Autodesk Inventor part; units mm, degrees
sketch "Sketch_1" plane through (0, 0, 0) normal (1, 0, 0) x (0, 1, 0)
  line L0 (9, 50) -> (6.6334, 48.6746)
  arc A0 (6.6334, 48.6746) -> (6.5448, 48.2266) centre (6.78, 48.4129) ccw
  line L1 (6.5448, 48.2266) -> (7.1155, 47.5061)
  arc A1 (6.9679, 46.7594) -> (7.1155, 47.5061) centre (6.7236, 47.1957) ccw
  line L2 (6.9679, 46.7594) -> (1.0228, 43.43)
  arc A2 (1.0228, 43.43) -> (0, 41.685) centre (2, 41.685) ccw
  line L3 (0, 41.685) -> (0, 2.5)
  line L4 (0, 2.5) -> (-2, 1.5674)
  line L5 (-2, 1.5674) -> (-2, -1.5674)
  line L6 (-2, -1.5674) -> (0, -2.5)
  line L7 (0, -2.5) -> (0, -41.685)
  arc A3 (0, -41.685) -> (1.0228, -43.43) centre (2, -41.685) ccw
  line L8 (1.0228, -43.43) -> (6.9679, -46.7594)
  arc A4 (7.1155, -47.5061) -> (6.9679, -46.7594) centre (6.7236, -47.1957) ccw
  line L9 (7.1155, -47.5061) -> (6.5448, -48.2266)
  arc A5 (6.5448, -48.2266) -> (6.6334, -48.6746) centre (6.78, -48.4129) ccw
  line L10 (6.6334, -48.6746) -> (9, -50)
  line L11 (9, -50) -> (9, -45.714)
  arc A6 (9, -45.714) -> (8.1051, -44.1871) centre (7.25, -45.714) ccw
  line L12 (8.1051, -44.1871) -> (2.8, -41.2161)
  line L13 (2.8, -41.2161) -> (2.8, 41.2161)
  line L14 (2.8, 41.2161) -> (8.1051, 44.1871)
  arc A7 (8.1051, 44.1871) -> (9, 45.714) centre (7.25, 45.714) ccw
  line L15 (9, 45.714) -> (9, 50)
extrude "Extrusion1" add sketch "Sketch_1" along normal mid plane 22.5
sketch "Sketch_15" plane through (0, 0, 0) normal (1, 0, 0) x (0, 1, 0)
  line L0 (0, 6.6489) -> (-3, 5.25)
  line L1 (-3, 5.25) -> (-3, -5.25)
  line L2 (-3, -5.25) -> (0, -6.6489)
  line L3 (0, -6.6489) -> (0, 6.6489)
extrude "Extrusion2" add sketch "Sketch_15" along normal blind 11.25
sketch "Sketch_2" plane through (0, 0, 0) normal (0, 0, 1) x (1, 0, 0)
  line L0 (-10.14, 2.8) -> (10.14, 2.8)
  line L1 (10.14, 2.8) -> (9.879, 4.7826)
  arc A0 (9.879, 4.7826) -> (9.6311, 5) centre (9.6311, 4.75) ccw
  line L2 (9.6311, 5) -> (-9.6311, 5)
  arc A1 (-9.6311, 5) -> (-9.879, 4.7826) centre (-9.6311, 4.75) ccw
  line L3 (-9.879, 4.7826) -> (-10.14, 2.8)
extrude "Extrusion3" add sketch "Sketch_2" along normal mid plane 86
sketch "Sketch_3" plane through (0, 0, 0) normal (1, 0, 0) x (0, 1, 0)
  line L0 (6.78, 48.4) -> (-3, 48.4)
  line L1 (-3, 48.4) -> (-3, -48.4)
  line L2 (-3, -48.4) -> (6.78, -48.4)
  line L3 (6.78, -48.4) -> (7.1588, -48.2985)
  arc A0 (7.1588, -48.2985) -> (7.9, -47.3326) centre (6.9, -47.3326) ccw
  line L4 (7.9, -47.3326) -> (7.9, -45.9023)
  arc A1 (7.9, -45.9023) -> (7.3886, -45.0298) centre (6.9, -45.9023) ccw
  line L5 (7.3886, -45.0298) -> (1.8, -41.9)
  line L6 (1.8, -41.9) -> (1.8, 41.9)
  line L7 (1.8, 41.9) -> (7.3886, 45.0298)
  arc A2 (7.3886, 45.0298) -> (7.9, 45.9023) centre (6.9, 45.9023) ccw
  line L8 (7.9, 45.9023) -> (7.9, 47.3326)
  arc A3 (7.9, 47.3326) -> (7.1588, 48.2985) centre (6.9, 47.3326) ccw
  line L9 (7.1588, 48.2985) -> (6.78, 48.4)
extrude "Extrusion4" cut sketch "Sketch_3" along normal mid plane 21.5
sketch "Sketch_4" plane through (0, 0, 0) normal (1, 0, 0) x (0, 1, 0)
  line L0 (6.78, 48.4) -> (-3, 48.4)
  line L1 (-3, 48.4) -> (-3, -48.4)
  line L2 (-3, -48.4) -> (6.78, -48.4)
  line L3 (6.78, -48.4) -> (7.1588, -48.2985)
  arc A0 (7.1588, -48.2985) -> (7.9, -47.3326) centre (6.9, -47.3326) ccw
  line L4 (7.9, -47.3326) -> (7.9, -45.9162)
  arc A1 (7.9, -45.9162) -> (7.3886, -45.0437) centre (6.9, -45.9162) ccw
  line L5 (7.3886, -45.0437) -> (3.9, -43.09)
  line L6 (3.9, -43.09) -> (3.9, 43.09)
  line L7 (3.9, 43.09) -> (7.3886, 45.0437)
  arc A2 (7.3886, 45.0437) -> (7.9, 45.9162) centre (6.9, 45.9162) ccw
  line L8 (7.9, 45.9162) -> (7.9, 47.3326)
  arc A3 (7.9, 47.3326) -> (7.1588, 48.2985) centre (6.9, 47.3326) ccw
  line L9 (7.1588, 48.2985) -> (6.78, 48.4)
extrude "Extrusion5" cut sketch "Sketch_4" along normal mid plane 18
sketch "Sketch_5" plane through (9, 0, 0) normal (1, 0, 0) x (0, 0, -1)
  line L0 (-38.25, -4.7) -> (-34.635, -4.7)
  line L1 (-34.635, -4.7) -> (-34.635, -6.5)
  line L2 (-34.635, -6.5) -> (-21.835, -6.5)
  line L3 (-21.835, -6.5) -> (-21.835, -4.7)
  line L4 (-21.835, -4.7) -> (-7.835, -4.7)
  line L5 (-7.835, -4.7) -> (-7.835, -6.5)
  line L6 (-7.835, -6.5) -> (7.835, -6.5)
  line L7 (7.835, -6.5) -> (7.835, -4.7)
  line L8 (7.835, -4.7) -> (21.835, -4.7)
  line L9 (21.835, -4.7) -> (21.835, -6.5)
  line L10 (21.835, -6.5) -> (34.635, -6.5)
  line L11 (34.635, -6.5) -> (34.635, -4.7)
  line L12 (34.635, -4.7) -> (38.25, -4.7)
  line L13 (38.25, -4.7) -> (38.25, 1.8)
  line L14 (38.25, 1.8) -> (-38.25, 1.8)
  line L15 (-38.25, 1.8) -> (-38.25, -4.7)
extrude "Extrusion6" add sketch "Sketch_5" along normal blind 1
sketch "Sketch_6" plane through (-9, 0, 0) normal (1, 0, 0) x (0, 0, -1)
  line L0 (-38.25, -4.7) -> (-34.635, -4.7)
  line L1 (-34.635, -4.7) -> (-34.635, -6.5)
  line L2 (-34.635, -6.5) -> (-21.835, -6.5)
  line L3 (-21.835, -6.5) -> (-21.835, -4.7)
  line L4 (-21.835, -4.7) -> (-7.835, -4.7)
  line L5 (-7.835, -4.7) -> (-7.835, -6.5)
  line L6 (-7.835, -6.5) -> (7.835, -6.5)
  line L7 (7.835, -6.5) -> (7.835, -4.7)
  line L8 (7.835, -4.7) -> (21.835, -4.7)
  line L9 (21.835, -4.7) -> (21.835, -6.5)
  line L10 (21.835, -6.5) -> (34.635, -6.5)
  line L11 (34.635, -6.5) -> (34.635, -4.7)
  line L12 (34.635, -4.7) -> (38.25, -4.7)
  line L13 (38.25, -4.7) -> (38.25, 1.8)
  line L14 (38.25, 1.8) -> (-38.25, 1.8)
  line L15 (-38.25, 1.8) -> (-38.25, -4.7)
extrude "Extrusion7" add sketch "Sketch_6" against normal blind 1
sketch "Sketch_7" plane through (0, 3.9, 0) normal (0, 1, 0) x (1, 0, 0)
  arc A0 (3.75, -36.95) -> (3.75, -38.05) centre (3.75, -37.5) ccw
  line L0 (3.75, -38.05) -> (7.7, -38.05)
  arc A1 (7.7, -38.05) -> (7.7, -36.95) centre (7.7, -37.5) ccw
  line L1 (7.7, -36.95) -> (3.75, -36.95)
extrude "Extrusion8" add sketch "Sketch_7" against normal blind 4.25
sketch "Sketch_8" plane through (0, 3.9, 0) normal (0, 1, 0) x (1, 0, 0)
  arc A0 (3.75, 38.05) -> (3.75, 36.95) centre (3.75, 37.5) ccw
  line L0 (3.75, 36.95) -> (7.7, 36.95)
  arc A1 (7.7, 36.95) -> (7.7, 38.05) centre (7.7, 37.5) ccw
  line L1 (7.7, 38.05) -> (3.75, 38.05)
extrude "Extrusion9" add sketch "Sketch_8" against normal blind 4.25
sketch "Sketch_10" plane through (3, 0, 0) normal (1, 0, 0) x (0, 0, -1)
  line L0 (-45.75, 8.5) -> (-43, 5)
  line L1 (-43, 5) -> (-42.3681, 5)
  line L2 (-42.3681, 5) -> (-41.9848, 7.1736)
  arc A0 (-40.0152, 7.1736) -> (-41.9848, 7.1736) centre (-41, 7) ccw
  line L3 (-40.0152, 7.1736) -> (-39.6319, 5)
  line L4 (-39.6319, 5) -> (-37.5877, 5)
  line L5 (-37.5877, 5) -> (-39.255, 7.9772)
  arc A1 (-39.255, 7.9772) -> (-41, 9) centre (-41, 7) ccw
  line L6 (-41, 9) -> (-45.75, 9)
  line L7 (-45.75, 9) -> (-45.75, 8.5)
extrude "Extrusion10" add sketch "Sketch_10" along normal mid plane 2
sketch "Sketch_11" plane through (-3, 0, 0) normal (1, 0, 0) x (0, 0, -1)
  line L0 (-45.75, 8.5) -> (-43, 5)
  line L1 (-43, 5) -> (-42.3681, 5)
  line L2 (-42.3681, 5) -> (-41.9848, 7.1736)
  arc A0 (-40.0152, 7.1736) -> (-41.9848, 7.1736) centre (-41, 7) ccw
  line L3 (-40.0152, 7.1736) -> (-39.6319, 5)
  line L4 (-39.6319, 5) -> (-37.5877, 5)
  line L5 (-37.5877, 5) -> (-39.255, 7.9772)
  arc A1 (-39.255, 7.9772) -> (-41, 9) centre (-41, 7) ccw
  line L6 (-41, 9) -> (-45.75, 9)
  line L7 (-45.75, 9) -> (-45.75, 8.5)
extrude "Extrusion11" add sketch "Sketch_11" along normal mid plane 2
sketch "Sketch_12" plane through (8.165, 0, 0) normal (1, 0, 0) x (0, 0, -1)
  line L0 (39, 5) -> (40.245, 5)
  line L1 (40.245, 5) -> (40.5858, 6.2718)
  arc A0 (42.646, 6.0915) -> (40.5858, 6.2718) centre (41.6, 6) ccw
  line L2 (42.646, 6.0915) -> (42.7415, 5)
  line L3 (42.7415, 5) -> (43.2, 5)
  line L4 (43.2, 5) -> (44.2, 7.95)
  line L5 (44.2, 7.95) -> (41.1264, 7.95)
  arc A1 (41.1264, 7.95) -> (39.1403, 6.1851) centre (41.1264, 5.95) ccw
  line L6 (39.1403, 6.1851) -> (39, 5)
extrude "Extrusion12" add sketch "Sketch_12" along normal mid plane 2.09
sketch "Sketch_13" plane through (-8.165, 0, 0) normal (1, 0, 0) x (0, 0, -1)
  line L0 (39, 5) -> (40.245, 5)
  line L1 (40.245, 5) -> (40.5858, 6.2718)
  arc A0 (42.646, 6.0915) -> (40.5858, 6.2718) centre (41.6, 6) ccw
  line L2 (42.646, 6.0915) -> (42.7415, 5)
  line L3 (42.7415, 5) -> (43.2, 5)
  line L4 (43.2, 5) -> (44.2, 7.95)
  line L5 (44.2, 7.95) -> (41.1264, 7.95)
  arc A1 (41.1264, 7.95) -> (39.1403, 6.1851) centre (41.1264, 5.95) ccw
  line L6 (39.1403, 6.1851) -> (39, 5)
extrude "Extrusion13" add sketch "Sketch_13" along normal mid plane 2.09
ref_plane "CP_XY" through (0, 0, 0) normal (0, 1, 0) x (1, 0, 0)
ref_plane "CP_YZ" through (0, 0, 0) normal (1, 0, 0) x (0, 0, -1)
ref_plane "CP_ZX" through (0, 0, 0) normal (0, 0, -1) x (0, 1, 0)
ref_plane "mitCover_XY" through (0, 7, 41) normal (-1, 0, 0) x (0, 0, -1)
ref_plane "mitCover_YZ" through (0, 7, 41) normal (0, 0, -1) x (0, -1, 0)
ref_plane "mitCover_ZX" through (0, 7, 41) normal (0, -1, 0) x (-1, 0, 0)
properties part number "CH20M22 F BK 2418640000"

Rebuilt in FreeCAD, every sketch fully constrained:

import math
import FreeCAD as App
import Part
import Sketcher

V = App.Vector
Q = App.Units.Quantity


def add_polygon(sketch, points):
    """Adds a closed chain of lines whose ends are joined by coincident constraints."""
    first, n = sketch.GeometryCount, len(points)
    for a, b in zip(points, points[1:] + points[:1]):
        sketch.addGeometry(Part.LineSegment(App.Vector(*a, 0), App.Vector(*b, 0)), False)
    for i in range(n):
        sketch.addConstraint(Sketcher.Constraint("Coincident", first + i, 2, first + (i + 1) % n, 1))

doc = App.newDocument("Part")
body = doc.addObject("PartDesign::Body", "Body")

sketch1 = body.newObject("Sketcher::SketchObject", "Sketch")
sketch1.AttachmentSupport = (doc.getObject("YZ_Plane"), [""])
sketch1.MapMode = "FlatFace"
sketch1.addGeometry(Part.LineSegment(V(9, 45.714, 0), V(9, 50, 0)), False)
sketch1.addGeometry(Part.LineSegment(V(9, 50, 0), V(6.6334, 48.6746, 0)), False)
sketch1.addGeometry(Part.ArcOfCircle(Part.Circle(V(6.78, 48.4129, 0), V(0, 0, 1), 0.299964), math.radians(119.256826), math.radians(218.382457)), False)
sketch1.addGeometry(Part.LineSegment(V(6.5448, 48.2266, 0), V(7.1155, 47.5061, 0)), False)
sketch1.addGeometry(Part.ArcOfCircle(Part.Circle(V(6.7236, 47.1957, 0), V(0, 0, 1), 0.50004), math.radians(-60.753973), math.radians(38.38059)), False)
sketch1.addGeometry(Part.LineSegment(V(6.9679, 46.7594, 0), V(1.0228, 43.43, 0)), False)
sketch1.addGeometry(Part.ArcOfCircle(Part.Circle(V(2, 41.685, 0), V(0, 0, 1), 1.999986), math.radians(119.248826), math.radians(180)), False)
sketch1.addGeometry(Part.LineSegment(V(0, 41.685, 0), V(0, 2.5, 0)), False)
sketch1.addGeometry(Part.LineSegment(V(0, 2.5, 0), V(-2, 1.5674, 0)), False)
sketch1.addGeometry(Part.LineSegment(V(-2, 1.5674, 0), V(-2, -1.5674, 0)), False)
sketch1.addGeometry(Part.LineSegment(V(-2, -1.5674, 0), V(0, -2.5, 0)), False)
sketch1.addGeometry(Part.LineSegment(V(0, -2.5, 0), V(0, -41.685, 0)), False)
sketch1.addGeometry(Part.ArcOfCircle(Part.Circle(V(2, -41.685, 0), V(0, 0, 1), 2), math.radians(180), math.radians(240.751174)), False)
sketch1.addGeometry(Part.LineSegment(V(1.0228, -43.43, 0), V(6.9679, -46.7594, 0)), False)
sketch1.addGeometry(Part.ArcOfCircle(Part.Circle(V(6.7236, -47.1957, 0), V(0, 0, 1), 0.499934), math.radians(-38.38059), math.radians(60.753973)), False)
sketch1.addGeometry(Part.LineSegment(V(7.1155, -47.5061, 0), V(6.5448, -48.2266, 0)), False)
sketch1.addGeometry(Part.ArcOfCircle(Part.Circle(V(6.78, -48.4129, 0), V(0, 0, 1), 0.300045), math.radians(141.617543), math.radians(240.743174)), False)
sketch1.addGeometry(Part.LineSegment(V(6.6334, -48.6746, 0), V(9, -50, 0)), False)
sketch1.addGeometry(Part.LineSegment(V(9, -50, 0), V(9, -45.714, 0)), False)
sketch1.addGeometry(Part.ArcOfCircle(Part.Circle(V(7.25, -45.714, 0), V(0, 0, 1), 1.75), math.radians(0), math.radians(60.750145)), False)
sketch1.addGeometry(Part.LineSegment(V(8.1051, -44.1871, 0), V(2.8, -41.2161, 0)), False)
sketch1.addGeometry(Part.LineSegment(V(2.8, -41.2161, 0), V(2.8, 41.2161, 0)), False)
sketch1.addGeometry(Part.LineSegment(V(2.8, 41.2161, 0), V(8.1051, 44.1871, 0)), False)
sketch1.addGeometry(Part.ArcOfCircle(Part.Circle(V(7.25, 45.714, 0), V(0, 0, 1), 1.750034), math.radians(-60.750145), math.radians(0)), False)
sketch1.addConstraint(Sketcher.Constraint("Coincident", 0, 2, 1, 1))
sketch1.addConstraint(Sketcher.Constraint("Tangent", 1, 2, 2, 1))
sketch1.addConstraint(Sketcher.Constraint("Tangent", 2, 2, 3, 1))
sketch1.addConstraint(Sketcher.Constraint("Tangent", 3, 2, 4, 2))
sketch1.addConstraint(Sketcher.Constraint("Tangent", 4, 1, 5, 1))
sketch1.addConstraint(Sketcher.Constraint("Tangent", 5, 2, 6, 1))
sketch1.addConstraint(Sketcher.Constraint("Tangent", 6, 2, 7, 1))
sketch1.addConstraint(Sketcher.Constraint("Coincident", 7, 2, 8, 1))
sketch1.addConstraint(Sketcher.Constraint("Coincident", 8, 2, 9, 1))
sketch1.addConstraint(Sketcher.Constraint("Coincident", 9, 2, 10, 1))
sketch1.addConstraint(Sketcher.Constraint("Coincident", 10, 2, 11, 1))
sketch1.addConstraint(Sketcher.Constraint("Tangent", 11, 2, 12, 1))
sketch1.addConstraint(Sketcher.Constraint("Tangent", 12, 2, 13, 1))
sketch1.addConstraint(Sketcher.Constraint("Tangent", 13, 2, 14, 2))
sketch1.addConstraint(Sketcher.Constraint("Tangent", 14, 1, 15, 1))
sketch1.addConstraint(Sketcher.Constraint("Tangent", 15, 2, 16, 1))
sketch1.addConstraint(Sketcher.Constraint("Tangent", 16, 2, 17, 1))
sketch1.addConstraint(Sketcher.Constraint("Coincident", 17, 2, 18, 1))
sketch1.addConstraint(Sketcher.Constraint("Tangent", 18, 2, 19, 1))
sketch1.addConstraint(Sketcher.Constraint("Tangent", 19, 2, 20, 1))
sketch1.addConstraint(Sketcher.Constraint("Coincident", 20, 2, 21, 1))
sketch1.addConstraint(Sketcher.Constraint("Coincident", 21, 2, 22, 1))
sketch1.addConstraint(Sketcher.Constraint("Tangent", 22, 2, 23, 1))
sketch1.addConstraint(Sketcher.Constraint("Tangent", 23, 2, 0, 1))
sketch1.addConstraint(Sketcher.Constraint("Vertical", 0))
sketch1.addConstraint(Sketcher.Constraint("Vertical", 7))
sketch1.addConstraint(Sketcher.Constraint("Vertical", 9))
sketch1.addConstraint(Sketcher.Constraint("Vertical", 11))
sketch1.addConstraint(Sketcher.Constraint("Vertical", 18))
sketch1.addConstraint(Sketcher.Constraint("Vertical", 21))
sketch1.addConstraint(Sketcher.Constraint("Equal", 6, 12))
sketch1.addConstraint(Sketcher.Constraint("Equal", 4, 14))
sketch1.addConstraint(Sketcher.Constraint("Equal", 2, 16))
sketch1.addConstraint(Sketcher.Constraint("Equal", 19, 23))
sketch1.addConstraint(Sketcher.Constraint("Symmetric", 7, 2, 10, 2, -1, 1))
sketch1.addConstraint(Sketcher.Constraint("Symmetric", 6, 3, 12, 3, -1))
sketch1.addConstraint(Sketcher.Constraint("Symmetric", 4, 3, 14, 3, -1))
sketch1.addConstraint(Sketcher.Constraint("Symmetric", 2, 3, 16, 3, -1))
sketch1.addConstraint(Sketcher.Constraint("Symmetric", 19, 3, 23, 3, -1))
sketch1.addConstraint(Sketcher.Constraint("Parallel", 1, 5))
sketch1.addConstraint(Sketcher.Constraint("Parallel", 13, 17))
sketch1.addConstraint(Sketcher.Constraint("Parallel", 17, 20))
sketch1.addConstraint(Sketcher.Constraint("Parallel", 5, 22))
sketch1.addConstraint(Sketcher.Constraint("Equal", 8, 10))
sketch1.addConstraint(Sketcher.Constraint("Radius", 6, 2.0))
sketch1.addConstraint(Sketcher.Constraint("Radius", 2, 0.3))
sketch1.addConstraint(Sketcher.Constraint("Radius", 4, 0.5))
sketch1.addConstraint(Sketcher.Constraint("Angle", 8, Q("-155.0004 deg")))
sketch1.addConstraint(Sketcher.Constraint("Radius", 19, 1.75))
sketch1.addConstraint(Sketcher.Constraint("DistanceX", -1, 1, 0, 2, 9.0))
sketch1.addConstraint(Sketcher.Constraint("DistanceY", -1, 1, 0, 2, 50.0))
sketch1.addConstraint(Sketcher.Constraint("DistanceX", 8, 2, -1, 1, 2.0))
sketch1.addConstraint(Sketcher.Constraint("DistanceY", 10, 2, 7, 2, 5.0))
sketch1.addConstraint(Sketcher.Constraint("DistanceX", -1, 1, 20, 2, 2.8))
sketch1.addConstraint(Sketcher.Constraint("Angle", 1, Q("-150.7493 deg")))
sketch1.addConstraint(Sketcher.Constraint("DistanceY", 0, 1, 0, 2, 4.286))
sketch1.addConstraint(Sketcher.Constraint("DistanceY", 7, 2, 7, 1, 39.185))
sketch1.addConstraint(Sketcher.Constraint("DistanceX", -1, 1, 2, 3, 6.78))
sketch1.addConstraint(Sketcher.Constraint("Distance", 5, 6.814))
pad1 = body.newObject("PartDesign::Pad", "Pad")
pad1.Profile = sketch1
pad1.Length = 22.5
pad1.Midplane = True

sketch2 = body.newObject("Sketcher::SketchObject", "Sketch001")
sketch2.AttachmentSupport = (doc.getObject("YZ_Plane"), [""])
sketch2.MapMode = "FlatFace"
add_polygon(sketch2, [(0, -6.6489), (0, 6.6489), (-3, 5.25), (-3, -5.25)])
sketch2.addConstraint(Sketcher.Constraint("Vertical", 0))
sketch2.addConstraint(Sketcher.Constraint("Vertical", 2))
sketch2.addConstraint(Sketcher.Constraint("Symmetric", 0, 2, 3, 2, -1, 1))
sketch2.addConstraint(Sketcher.Constraint("Equal", 1, 3))
sketch2.addConstraint(Sketcher.Constraint("Angle", 1, Q("-155.0004 deg")))
sketch2.addConstraint(Sketcher.Constraint("DistanceY", 2, 2, 2, 1, 10.5))
sketch2.addConstraint(Sketcher.Constraint("DistanceX", 1, 2, -1, 1, 3.0))
pad2 = body.newObject("PartDesign::Pad", "Pad001")
pad2.Profile = sketch2
pad2.Length = 11.25

sketch3 = body.newObject("Sketcher::SketchObject", "Sketch002")
sketch3.AttachmentSupport = (doc.getObject("XY_Plane"), [""])
sketch3.MapMode = "FlatFace"
sketch3.addGeometry(Part.LineSegment(V(-9.879, 4.7826, 0), V(-10.14, 2.8, 0)), False)
sketch3.addGeometry(Part.LineSegment(V(-10.14, 2.8, 0), V(10.14, 2.8, 0)), False)
sketch3.addGeometry(Part.LineSegment(V(10.14, 2.8, 0), V(9.879, 4.7826, 0)), False)
sketch3.addGeometry(Part.ArcOfCircle(Part.Circle(V(9.6311, 4.75, 0), V(0, 0, 1), 0.250034), math.radians(7.491672), math.radians(90)), False)
sketch3.addGeometry(Part.LineSegment(V(9.6311, 5, 0), V(-9.6311, 5, 0)), False)
sketch3.addGeometry(Part.ArcOfCircle(Part.Circle(V(-9.6311, 4.75, 0), V(0, 0, 1), 0.25), math.radians(90), math.radians(172.508328)), False)
sketch3.addConstraint(Sketcher.Constraint("Coincident", 0, 2, 1, 1))
sketch3.addConstraint(Sketcher.Constraint("Coincident", 1, 2, 2, 1))
sketch3.addConstraint(Sketcher.Constraint("Tangent", 2, 2, 3, 1))
sketch3.addConstraint(Sketcher.Constraint("Tangent", 3, 2, 4, 1))
sketch3.addConstraint(Sketcher.Constraint("Tangent", 4, 2, 5, 1))
sketch3.addConstraint(Sketcher.Constraint("Tangent", 5, 2, 0, 1))
sketch3.addConstraint(Sketcher.Constraint("Horizontal", 1))
sketch3.addConstraint(Sketcher.Constraint("Horizontal", 4))
sketch3.addConstraint(Sketcher.Constraint("Equal", 3, 5))
sketch3.addConstraint(Sketcher.Constraint("Symmetric", 2, 2, 5, 2, -2))
sketch3.addConstraint(Sketcher.Constraint("Radius", 3, 0.25))
sketch3.addConstraint(Sketcher.Constraint("DistanceY", -1, 1, 3, 2, 5.0))
sketch3.addConstraint(Sketcher.Constraint("Angle", 0, Q("-97.4996 deg")))
sketch3.addConstraint(Sketcher.Constraint("DistanceX", 1, 1, 1, 2, 20.28))
sketch3.addConstraint(Sketcher.Constraint("DistanceY", -1, 1, 0, 2, 2.8))
pad3 = body.newObject("PartDesign::Pad", "Pad002")
pad3.Profile = sketch3
pad3.Length = 86
pad3.Midplane = True

sketch4 = body.newObject("Sketcher::SketchObject", "Sketch003")
sketch4.AttachmentSupport = (doc.getObject("YZ_Plane"), [""])
sketch4.MapMode = "FlatFace"
sketch4.addGeometry(Part.LineSegment(V(7.1588, 48.2985, 0), V(6.78, 48.4, 0)), False)
sketch4.addGeometry(Part.LineSegment(V(6.78, 48.4, 0), V(-3, 48.4, 0)), False)
sketch4.addGeometry(Part.LineSegment(V(-3, 48.4, 0), V(-3, -48.4, 0)), False)
sketch4.addGeometry(Part.LineSegment(V(-3, -48.4, 0), V(6.78, -48.4, 0)), False)
sketch4.addGeometry(Part.LineSegment(V(6.78, -48.4, 0), V(7.1588, -48.2985, 0)), False)
sketch4.addGeometry(Part.ArcOfCircle(Part.Circle(V(6.9, -47.3326, 0), V(0, 0, 1), 0.99997), math.radians(-75.000671), math.radians(0)), False)
sketch4.addGeometry(Part.LineSegment(V(7.9, -47.3326, 0), V(7.9, -45.9023, 0)), False)
sketch4.addGeometry(Part.ArcOfCircle(Part.Circle(V(6.9, -45.9023, 0), V(0, 0, 1), 1), math.radians(0), math.radians(60.751174)), False)
sketch4.addGeometry(Part.LineSegment(V(7.3886, -45.0298, 0), V(1.8, -41.9, 0)), False)
sketch4.addGeometry(Part.LineSegment(V(1.8, -41.9, 0), V(1.8, 41.9, 0)), False)
sketch4.addGeometry(Part.LineSegment(V(1.8, 41.9, 0), V(7.3886, 45.0298, 0)), False)
sketch4.addGeometry(Part.ArcOfCircle(Part.Circle(V(6.9, 45.9023, 0), V(0, 0, 1), 0.999993), math.radians(-60.751174), math.radians(0)), False)
sketch4.addGeometry(Part.LineSegment(V(7.9, 45.9023, 0), V(7.9, 47.3326, 0)), False)
sketch4.addGeometry(Part.ArcOfCircle(Part.Circle(V(6.9, 47.3326, 0), V(0, 0, 1), 1), math.radians(0), math.radians(75.000671)), False)
sketch4.addConstraint(Sketcher.Constraint("Coincident", 0, 2, 1, 1))
sketch4.addConstraint(Sketcher.Constraint("Coincident", 1, 2, 2, 1))
sketch4.addConstraint(Sketcher.Constraint("Coincident", 2, 2, 3, 1))
sketch4.addConstraint(Sketcher.Constraint("Coincident", 3, 2, 4, 1))
sketch4.addConstraint(Sketcher.Constraint("Tangent", 4, 2, 5, 1))
sketch4.addConstraint(Sketcher.Constraint("Tangent", 5, 2, 6, 1))
sketch4.addConstraint(Sketcher.Constraint("Tangent", 6, 2, 7, 1))
sketch4.addConstraint(Sketcher.Constraint("Tangent", 7, 2, 8, 1))
sketch4.addConstraint(Sketcher.Constraint("Coincident", 8, 2, 9, 1))
sketch4.addConstraint(Sketcher.Constraint("Coincident", 9, 2, 10, 1))
sketch4.addConstraint(Sketcher.Constraint("Tangent", 10, 2, 11, 1))
sketch4.addConstraint(Sketcher.Constraint("Tangent", 11, 2, 12, 1))
sketch4.addConstraint(Sketcher.Constraint("Tangent", 12, 2, 13, 1))
sketch4.addConstraint(Sketcher.Constraint("Tangent", 13, 2, 0, 1))
sketch4.addConstraint(Sketcher.Constraint("Horizontal", 1))
sketch4.addConstraint(Sketcher.Constraint("Vertical", 2))
sketch4.addConstraint(Sketcher.Constraint("Horizontal", 3))
sketch4.addConstraint(Sketcher.Constraint("Vertical", 6))
sketch4.addConstraint(Sketcher.Constraint("Vertical", 9))
sketch4.addConstraint(Sketcher.Constraint("Vertical", 12))
sketch4.addConstraint(Sketcher.Constraint("Equal", 5, 7))
sketch4.addConstraint(Sketcher.Constraint("Equal", 7, 11))
sketch4.addConstraint(Sketcher.Constraint("Equal", 11, 13))
sketch4.addConstraint(Sketcher.Constraint("Symmetric", 7, 3, 11, 3, -1))
sketch4.addConstraint(Sketcher.Constraint("Symmetric", 0, 2, 3, 2, -1))
sketch4.addConstraint(Sketcher.Constraint("Vertical", 7, 2, 10, 2))
sketch4.addConstraint(Sketcher.Constraint("Vertical", 4, 2, 13, 2))
sketch4.addConstraint(Sketcher.Constraint("Radius", 5, 1.0))
sketch4.addConstraint(Sketcher.Constraint("Angle", 0, Q("165 deg")))
sketch4.addConstraint(Sketcher.Constraint("DistanceY", 2, 2, 2, 1, 96.8))
sketch4.addConstraint(Sketcher.Constraint("DistanceY", 9, 1, 9, 2, 83.8))
sketch4.addConstraint(Sketcher.Constraint("DistanceX", 1, 2, -1, 1, 3.0))
sketch4.addConstraint(Sketcher.Constraint("DistanceX", 1, 2, 1, 1, 9.78))
sketch4.addConstraint(Sketcher.Constraint("DistanceX", -1, 1, 5, 3, 6.9))
sketch4.addConstraint(Sketcher.Constraint("DistanceX", -1, 1, 8, 2, 1.8))
sketch4.addConstraint(Sketcher.Constraint("Angle", 8, Q("150.7497 deg")))
pocket1 = body.newObject("PartDesign::Pocket", "Pocket")
pocket1.Profile = sketch4
pocket1.Length = 21.5
pocket1.Midplane = True

sketch5 = body.newObject("Sketcher::SketchObject", "Sketch004")
sketch5.AttachmentSupport = (doc.getObject("YZ_Plane"), [""])
sketch5.MapMode = "FlatFace"
sketch5.addGeometry(Part.LineSegment(V(7.1588, 48.2985, 0), V(6.78, 48.4, 0)), False)
sketch5.addGeometry(Part.LineSegment(V(6.78, 48.4, 0), V(-3, 48.4, 0)), False)
sketch5.addGeometry(Part.LineSegment(V(-3, 48.4, 0), V(-3, -48.4, 0)), False)
sketch5.addGeometry(Part.LineSegment(V(-3, -48.4, 0), V(6.78, -48.4, 0)), False)
sketch5.addGeometry(Part.LineSegment(V(6.78, -48.4, 0), V(7.1588, -48.2985, 0)), False)
sketch5.addGeometry(Part.ArcOfCircle(Part.Circle(V(6.9, -47.3326, 0), V(0, 0, 1), 0.99997), math.radians(-75.000671), math.radians(0)), False)
sketch5.addGeometry(Part.LineSegment(V(7.9, -47.3326, 0), V(7.9, -45.9162, 0)), False)
sketch5.addGeometry(Part.ArcOfCircle(Part.Circle(V(6.9, -45.9162, 0), V(0, 0, 1), 1), math.radians(0), math.radians(60.751174)), False)
sketch5.addGeometry(Part.LineSegment(V(7.3886, -45.0437, 0), V(3.9, -43.09, 0)), False)
sketch5.addGeometry(Part.LineSegment(V(3.9, -43.09, 0), V(3.9, 43.09, 0)), False)
sketch5.addGeometry(Part.LineSegment(V(3.9, 43.09, 0), V(7.3886, 45.0437, 0)), False)
sketch5.addGeometry(Part.ArcOfCircle(Part.Circle(V(6.9, 45.9162, 0), V(0, 0, 1), 0.999993), math.radians(-60.751174), math.radians(0)), False)
sketch5.addGeometry(Part.LineSegment(V(7.9, 45.9162, 0), V(7.9, 47.3326, 0)), False)
sketch5.addGeometry(Part.ArcOfCircle(Part.Circle(V(6.9, 47.3326, 0), V(0, 0, 1), 1), math.radians(0), math.radians(75.000671)), False)
sketch5.addConstraint(Sketcher.Constraint("Coincident", 0, 2, 1, 1))
sketch5.addConstraint(Sketcher.Constraint("Coincident", 1, 2, 2, 1))
sketch5.addConstraint(Sketcher.Constraint("Coincident", 2, 2, 3, 1))
sketch5.addConstraint(Sketcher.Constraint("Coincident", 3, 2, 4, 1))
sketch5.addConstraint(Sketcher.Constraint("Tangent", 4, 2, 5, 1))
sketch5.addConstraint(Sketcher.Constraint("Tangent", 5, 2, 6, 1))
sketch5.addConstraint(Sketcher.Constraint("Tangent", 6, 2, 7, 1))
sketch5.addConstraint(Sketcher.Constraint("Tangent", 7, 2, 8, 1))
sketch5.addConstraint(Sketcher.Constraint("Coincident", 8, 2, 9, 1))
sketch5.addConstraint(Sketcher.Constraint("Coincident", 9, 2, 10, 1))
sketch5.addConstraint(Sketcher.Constraint("Tangent", 10, 2, 11, 1))
sketch5.addConstraint(Sketcher.Constraint("Tangent", 11, 2, 12, 1))
sketch5.addConstraint(Sketcher.Constraint("Tangent", 12, 2, 13, 1))
sketch5.addConstraint(Sketcher.Constraint("Tangent", 13, 2, 0, 1))
sketch5.addConstraint(Sketcher.Constraint("Horizontal", 1))
sketch5.addConstraint(Sketcher.Constraint("Vertical", 2))
sketch5.addConstraint(Sketcher.Constraint("Horizontal", 3))
sketch5.addConstraint(Sketcher.Constraint("Vertical", 6))
sketch5.addConstraint(Sketcher.Constraint("Vertical", 9))
sketch5.addConstraint(Sketcher.Constraint("Vertical", 12))
sketch5.addConstraint(Sketcher.Constraint("Equal", 5, 7))
sketch5.addConstraint(Sketcher.Constraint("Equal", 7, 11))
sketch5.addConstraint(Sketcher.Constraint("Equal", 11, 13))
sketch5.addConstraint(Sketcher.Constraint("Symmetric", 7, 3, 11, 3, -1))
sketch5.addConstraint(Sketcher.Constraint("Symmetric", 0, 2, 3, 2, -1))
sketch5.addConstraint(Sketcher.Constraint("Vertical", 7, 2, 10, 2))
sketch5.addConstraint(Sketcher.Constraint("Vertical", 4, 2, 13, 2))
sketch5.addConstraint(Sketcher.Constraint("Radius", 5, 1.0))
sketch5.addConstraint(Sketcher.Constraint("Angle", 0, Q("165 deg")))
sketch5.addConstraint(Sketcher.Constraint("DistanceY", 2, 2, 2, 1, 96.8))
sketch5.addConstraint(Sketcher.Constraint("DistanceX", 1, 2, -1, 1, 3.0))
sketch5.addConstraint(Sketcher.Constraint("DistanceX", 8, 2, 7, 3, 3.0))
sketch5.addConstraint(Sketcher.Constraint("DistanceX", 1, 2, 1, 1, 9.78))
sketch5.addConstraint(Sketcher.Constraint("DistanceY", 9, 1, 9, 2, 86.18))
sketch5.addConstraint(Sketcher.Constraint("DistanceX", -1, 1, 5, 3, 6.9))
sketch5.addConstraint(Sketcher.Constraint("Angle", 8, Q("150.7501 deg")))
pocket2 = body.newObject("PartDesign::Pocket", "Pocket001")
pocket2.Profile = sketch5
pocket2.Length = 18
pocket2.Midplane = True

sketch6 = body.newObject("Sketcher::SketchObject", "Sketch005")
sketch6.AttachmentSupport = (doc.getObject("YZ_Plane"), [""])
sketch6.MapMode = "FlatFace"
sketch6.AttachmentOffset = App.Placement(V(0, 0, 9), App.Rotation())
add_polygon(sketch6, [(1.8, 38.25), (-4.7, 38.25), (-4.7, 34.635), (-6.5, 34.635), (-6.5, 21.835), (-4.7, 21.835), (-4.7, 7.835), (-6.5, 7.835), (-6.5, -7.835), (-4.7, -7.835), (-4.7, -21.835), (-6.5, -21.835), (-6.5, -34.635), (-4.7, -34.635), (-4.7, -38.25), (1.8, -38.25)])
sketch6.addConstraint(Sketcher.Constraint("Horizontal", 0))
sketch6.addConstraint(Sketcher.Constraint("Vertical", 1))
sketch6.addConstraint(Sketcher.Constraint("Horizontal", 2))
sketch6.addConstraint(Sketcher.Constraint("Vertical", 3))
sketch6.addConstraint(Sketcher.Constraint("Horizontal", 4))
sketch6.addConstraint(Sketcher.Constraint("Vertical", 5))
sketch6.addConstraint(Sketcher.Constraint("Horizontal", 6))
sketch6.addConstraint(Sketcher.Constraint("Vertical", 7))
sketch6.addConstraint(Sketcher.Constraint("Horizontal", 8))
sketch6.addConstraint(Sketcher.Constraint("Vertical", 9))
sketch6.addConstraint(Sketcher.Constraint("Horizontal", 10))
sketch6.addConstraint(Sketcher.Constraint("Vertical", 11))
sketch6.addConstraint(Sketcher.Constraint("Horizontal", 12))
sketch6.addConstraint(Sketcher.Constraint("Vertical", 13))
sketch6.addConstraint(Sketcher.Constraint("Horizontal", 14))
sketch6.addConstraint(Sketcher.Constraint("Vertical", 15))
sketch6.addConstraint(Sketcher.Constraint("Symmetric", 5, 2, 8, 2, -1))
sketch6.addConstraint(Sketcher.Constraint("Symmetric", 3, 2, 10, 2, -1))
sketch6.addConstraint(Sketcher.Constraint("Symmetric", 1, 2, 12, 2, -1))
sketch6.addConstraint(Sketcher.Constraint("Vertical", 1, 2, 4, 2))
sketch6.addConstraint(Sketcher.Constraint("Vertical", 3, 2, 6, 2))
sketch6.addConstraint(Sketcher.Constraint("Equal", 1, 13))
sketch6.addConstraint(Sketcher.Constraint("DistanceY", 5, 2, 5, 1, 14.0))
sketch6.addConstraint(Sketcher.Constraint("DistanceX", 0, 2, 0, 1, 6.5))
sketch6.addConstraint(Sketcher.Constraint("DistanceX", 2, 2, 2, 1, 1.8))
sketch6.addConstraint(Sketcher.Constraint("DistanceY", 3, 2, 3, 1, 12.8))
sketch6.addConstraint(Sketcher.Constraint("DistanceY", 15, 1, 15, 2, 76.5))
sketch6.addConstraint(Sketcher.Constraint("DistanceY", 7, 2, 7, 1, 15.67))
sketch6.addConstraint(Sketcher.Constraint("DistanceX", 0, 2, -1, 1, 4.7))
pad4 = body.newObject("PartDesign::Pad", "Pad003")
pad4.Profile = sketch6
pad4.Length = 1

sketch7 = body.newObject("Sketcher::SketchObject", "Sketch006")
sketch7.AttachmentSupport = (doc.getObject("YZ_Plane"), [""])
sketch7.MapMode = "FlatFace"
sketch7.AttachmentOffset = App.Placement(V(0, 0, -9), App.Rotation())
add_polygon(sketch7, [(1.8, 38.25), (-4.7, 38.25), (-4.7, 34.635), (-6.5, 34.635), (-6.5, 21.835), (-4.7, 21.835), (-4.7, 7.835), (-6.5, 7.835), (-6.5, -7.835), (-4.7, -7.835), (-4.7, -21.835), (-6.5, -21.835), (-6.5, -34.635), (-4.7, -34.635), (-4.7, -38.25), (1.8, -38.25)])
sketch7.addConstraint(Sketcher.Constraint("Horizontal", 0))
sketch7.addConstraint(Sketcher.Constraint("Vertical", 1))
sketch7.addConstraint(Sketcher.Constraint("Horizontal", 2))
sketch7.addConstraint(Sketcher.Constraint("Vertical", 3))
sketch7.addConstraint(Sketcher.Constraint("Horizontal", 4))
sketch7.addConstraint(Sketcher.Constraint("Vertical", 5))
sketch7.addConstraint(Sketcher.Constraint("Horizontal", 6))
sketch7.addConstraint(Sketcher.Constraint("Vertical", 7))
sketch7.addConstraint(Sketcher.Constraint("Horizontal", 8))
sketch7.addConstraint(Sketcher.Constraint("Vertical", 9))
sketch7.addConstraint(Sketcher.Constraint("Horizontal", 10))
sketch7.addConstraint(Sketcher.Constraint("Vertical", 11))
sketch7.addConstraint(Sketcher.Constraint("Horizontal", 12))
sketch7.addConstraint(Sketcher.Constraint("Vertical", 13))
sketch7.addConstraint(Sketcher.Constraint("Horizontal", 14))
sketch7.addConstraint(Sketcher.Constraint("Vertical", 15))
sketch7.addConstraint(Sketcher.Constraint("Symmetric", 5, 2, 8, 2, -1))
sketch7.addConstraint(Sketcher.Constraint("Symmetric", 3, 2, 10, 2, -1))
sketch7.addConstraint(Sketcher.Constraint("Symmetric", 1, 2, 12, 2, -1))
sketch7.addConstraint(Sketcher.Constraint("Vertical", 1, 2, 4, 2))
sketch7.addConstraint(Sketcher.Constraint("Vertical", 3, 2, 6, 2))
sketch7.addConstraint(Sketcher.Constraint("Equal", 1, 13))
sketch7.addConstraint(Sketcher.Constraint("DistanceY", 5, 2, 5, 1, 14.0))
sketch7.addConstraint(Sketcher.Constraint("DistanceX", 0, 2, 0, 1, 6.5))
sketch7.addConstraint(Sketcher.Constraint("DistanceX", 2, 2, 2, 1, 1.8))
sketch7.addConstraint(Sketcher.Constraint("DistanceY", 3, 2, 3, 1, 12.8))
sketch7.addConstraint(Sketcher.Constraint("DistanceY", 15, 1, 15, 2, 76.5))
sketch7.addConstraint(Sketcher.Constraint("DistanceY", 7, 2, 7, 1, 15.67))
sketch7.addConstraint(Sketcher.Constraint("DistanceX", 0, 2, -1, 1, 4.7))
pad5 = body.newObject("PartDesign::Pad", "Pad004")
pad5.Profile = sketch7
pad5.Length = 1
pad5.Reversed = True

sketch8 = body.newObject("Sketcher::SketchObject", "Sketch007")
sketch8.AttachmentSupport = (doc.getObject("XZ_Plane"), [""])
sketch8.MapMode = "FlatFace"
sketch8.AttachmentOffset = App.Placement(V(0, 0, -3.9), App.Rotation())
sketch8.addGeometry(Part.LineSegment(V(7.7, 36.95, 0), V(3.75, 36.95, 0)), False)
sketch8.addGeometry(Part.ArcOfCircle(Part.Circle(V(3.75, 37.5, 0), V(0, 0, 1), 0.55), math.radians(90), math.radians(270)), False)
sketch8.addGeometry(Part.LineSegment(V(3.75, 38.05, 0), V(7.7, 38.05, 0)), False)
sketch8.addGeometry(Part.ArcOfCircle(Part.Circle(V(7.7, 37.5, 0), V(0, 0, 1), 0.55), math.radians(-90), math.radians(90)), False)
sketch8.addConstraint(Sketcher.Constraint("Tangent", 0, 2, 1, 2))
sketch8.addConstraint(Sketcher.Constraint("Tangent", 1, 1, 2, 1))
sketch8.addConstraint(Sketcher.Constraint("Tangent", 2, 2, 3, 2))
sketch8.addConstraint(Sketcher.Constraint("Tangent", 3, 1, 0, 1))
sketch8.addConstraint(Sketcher.Constraint("Horizontal", 0))
sketch8.addConstraint(Sketcher.Constraint("Horizontal", 2))
sketch8.addConstraint(Sketcher.Constraint("Radius", 1, 0.55))
sketch8.addConstraint(Sketcher.Constraint("DistanceX", 0, 2, 0, 1, 3.95))
sketch8.addConstraint(Sketcher.Constraint("DistanceY", -1, 1, 1, 3, 37.5))
sketch8.addConstraint(Sketcher.Constraint("DistanceX", -1, 1, 3, 3, 7.7))
pad6 = body.newObject("PartDesign::Pad", "Pad005")
pad6.Profile = sketch8
pad6.Length = 4.25

sketch9 = body.newObject("Sketcher::SketchObject", "Sketch008")
sketch9.AttachmentSupport = (doc.getObject("XZ_Plane"), [""])
sketch9.MapMode = "FlatFace"
sketch9.AttachmentOffset = App.Placement(V(0, 0, -3.9), App.Rotation())
sketch9.addGeometry(Part.LineSegment(V(7.7, -38.05, 0), V(3.75, -38.05, 0)), False)
sketch9.addGeometry(Part.ArcOfCircle(Part.Circle(V(3.75, -37.5, 0), V(0, 0, 1), 0.55), math.radians(90), math.radians(270)), False)
sketch9.addGeometry(Part.LineSegment(V(3.75, -36.95, 0), V(7.7, -36.95, 0)), False)
sketch9.addGeometry(Part.ArcOfCircle(Part.Circle(V(7.7, -37.5, 0), V(0, 0, 1), 0.55), math.radians(-90), math.radians(90)), False)
sketch9.addConstraint(Sketcher.Constraint("Tangent", 0, 2, 1, 2))
sketch9.addConstraint(Sketcher.Constraint("Tangent", 1, 1, 2, 1))
sketch9.addConstraint(Sketcher.Constraint("Tangent", 2, 2, 3, 2))
sketch9.addConstraint(Sketcher.Constraint("Tangent", 3, 1, 0, 1))
sketch9.addConstraint(Sketcher.Constraint("Horizontal", 0))
sketch9.addConstraint(Sketcher.Constraint("Horizontal", 2))
sketch9.addConstraint(Sketcher.Constraint("Radius", 1, 0.55))
sketch9.addConstraint(Sketcher.Constraint("DistanceX", 0, 2, 0, 1, 3.95))
sketch9.addConstraint(Sketcher.Constraint("DistanceY", 1, 3, -1, 1, 37.5))
sketch9.addConstraint(Sketcher.Constraint("DistanceX", -1, 1, 3, 3, 7.7))
pad7 = body.newObject("PartDesign::Pad", "Pad006")
pad7.Profile = sketch9
pad7.Length = 4.25

sketch10 = body.newObject("Sketcher::SketchObject", "Sketch009")
sketch10.AttachmentSupport = (doc.getObject("YZ_Plane"), [""])
sketch10.MapMode = "FlatFace"
sketch10.AttachmentOffset = App.Placement(V(0, 0, 3), App.Rotation())
sketch10.addGeometry(Part.LineSegment(V(9, 45.75, 0), V(8.5, 45.75, 0)), False)
sketch10.addGeometry(Part.LineSegment(V(8.5, 45.75, 0), V(5, 43, 0)), False)
sketch10.addGeometry(Part.LineSegment(V(5, 43, 0), V(5, 42.3681, 0)), False)
sketch10.addGeometry(Part.LineSegment(V(5, 42.3681, 0), V(7.1736, 41.9848, 0)), False)
sketch10.addGeometry(Part.ArcOfCircle(Part.Circle(V(7, 41, 0), V(0, 0, 1), 0.999984), math.radians(-80.002641), math.radians(80.002641)), False)
sketch10.addGeometry(Part.LineSegment(V(7.1736, 40.0152, 0), V(5, 39.6319, 0)), False)
sketch10.addGeometry(Part.LineSegment(V(5, 39.6319, 0), V(5, 37.5877, 0)), False)
sketch10.addGeometry(Part.LineSegment(V(5, 37.5877, 0), V(7.9772, 39.255, 0)), False)
sketch10.addGeometry(Part.ArcOfCircle(Part.Circle(V(7, 41, 0), V(0, 0, 1), 1.999986), math.radians(-60.751174), math.radians(0)), False)
sketch10.addGeometry(Part.LineSegment(V(9, 41, 0), V(9, 45.75, 0)), False)
sketch10.addConstraint(Sketcher.Constraint("Coincident", 0, 2, 1, 1))
sketch10.addConstraint(Sketcher.Constraint("Coincident", 1, 2, 2, 1))
sketch10.addConstraint(Sketcher.Constraint("Coincident", 2, 2, 3, 1))
sketch10.addConstraint(Sketcher.Constraint("Tangent", 3, 2, 4, 2))
sketch10.addConstraint(Sketcher.Constraint("Tangent", 4, 1, 5, 1))
sketch10.addConstraint(Sketcher.Constraint("Coincident", 5, 2, 6, 1))
sketch10.addConstraint(Sketcher.Constraint("Coincident", 6, 2, 7, 1))
sketch10.addConstraint(Sketcher.Constraint("Tangent", 7, 2, 8, 1))
sketch10.addConstraint(Sketcher.Constraint("Tangent", 8, 2, 9, 1))
sketch10.addConstraint(Sketcher.Constraint("Coincident", 9, 2, 0, 1))
sketch10.addConstraint(Sketcher.Constraint("Horizontal", 0))
sketch10.addConstraint(Sketcher.Constraint("Vertical", 2))
sketch10.addConstraint(Sketcher.Constraint("Vertical", 6))
sketch10.addConstraint(Sketcher.Constraint("Vertical", 9))
sketch10.addConstraint(Sketcher.Constraint("Coincident", 8, 3, 4, 3))
sketch10.addConstraint(Sketcher.Constraint("Vertical", 3, 2, 4, 1))
sketch10.addConstraint(Sketcher.Constraint("Vertical", 2, 2, 5, 2))
sketch10.addConstraint(Sketcher.Constraint("Radius", 4, 1.0))
sketch10.addConstraint(Sketcher.Constraint("Radius", 8, 2.0))
sketch10.addConstraint(Sketcher.Constraint("Angle", 3, Q("-10.001 deg")))
sketch10.addConstraint(Sketcher.Constraint("DistanceX", 0, 2, 0, 1, 0.5))
sketch10.addConstraint(Sketcher.Constraint("DistanceX", -1, 1, 4, 3, 7.0))
sketch10.addConstraint(Sketcher.Constraint("DistanceY", -1, 1, 4, 3, 41.0))
sketch10.addConstraint(Sketcher.Constraint("DistanceX", -1, 1, 1, 2, 5.0))
sketch10.addConstraint(Sketcher.Constraint("DistanceY", -1, 1, 1, 2, 43.0))
sketch10.addConstraint(Sketcher.Constraint("DistanceY", 9, 1, 9, 2, 4.75))
sketch10.addConstraint(Sketcher.Constraint("Angle", 7, Q("29.2498 deg")))
pad8 = body.newObject("PartDesign::Pad", "Pad007")
pad8.Profile = sketch10
pad8.Length = 2
pad8.Midplane = True

sketch11 = body.newObject("Sketcher::SketchObject", "Sketch010")
sketch11.AttachmentSupport = (doc.getObject("YZ_Plane"), [""])
sketch11.MapMode = "FlatFace"
sketch11.AttachmentOffset = App.Placement(V(0, 0, -3), App.Rotation())
sketch11.addGeometry(Part.LineSegment(V(9, 45.75, 0), V(8.5, 45.75, 0)), False)
sketch11.addGeometry(Part.LineSegment(V(8.5, 45.75, 0), V(5, 43, 0)), False)
sketch11.addGeometry(Part.LineSegment(V(5, 43, 0), V(5, 42.3681, 0)), False)
sketch11.addGeometry(Part.LineSegment(V(5, 42.3681, 0), V(7.1736, 41.9848, 0)), False)
sketch11.addGeometry(Part.ArcOfCircle(Part.Circle(V(7, 41, 0), V(0, 0, 1), 0.999984), math.radians(-80.002641), math.radians(80.002641)), False)
sketch11.addGeometry(Part.LineSegment(V(7.1736, 40.0152, 0), V(5, 39.6319, 0)), False)
sketch11.addGeometry(Part.LineSegment(V(5, 39.6319, 0), V(5, 37.5877, 0)), False)
sketch11.addGeometry(Part.LineSegment(V(5, 37.5877, 0), V(7.9772, 39.255, 0)), False)
sketch11.addGeometry(Part.ArcOfCircle(Part.Circle(V(7, 41, 0), V(0, 0, 1), 1.999986), math.radians(-60.751174), math.radians(0)), False)
sketch11.addGeometry(Part.LineSegment(V(9, 41, 0), V(9, 45.75, 0)), False)
sketch11.addConstraint(Sketcher.Constraint("Coincident", 0, 2, 1, 1))
sketch11.addConstraint(Sketcher.Constraint("Coincident", 1, 2, 2, 1))
sketch11.addConstraint(Sketcher.Constraint("Coincident", 2, 2, 3, 1))
sketch11.addConstraint(Sketcher.Constraint("Tangent", 3, 2, 4, 2))
sketch11.addConstraint(Sketcher.Constraint("Tangent", 4, 1, 5, 1))
sketch11.addConstraint(Sketcher.Constraint("Coincident", 5, 2, 6, 1))
sketch11.addConstraint(Sketcher.Constraint("Coincident", 6, 2, 7, 1))
sketch11.addConstraint(Sketcher.Constraint("Tangent", 7, 2, 8, 1))
sketch11.addConstraint(Sketcher.Constraint("Tangent", 8, 2, 9, 1))
sketch11.addConstraint(Sketcher.Constraint("Coincident", 9, 2, 0, 1))
sketch11.addConstraint(Sketcher.Constraint("Horizontal", 0))
sketch11.addConstraint(Sketcher.Constraint("Vertical", 2))
sketch11.addConstraint(Sketcher.Constraint("Vertical", 6))
sketch11.addConstraint(Sketcher.Constraint("Vertical", 9))
sketch11.addConstraint(Sketcher.Constraint("Coincident", 8, 3, 4, 3))
sketch11.addConstraint(Sketcher.Constraint("Vertical", 3, 2, 4, 1))
sketch11.addConstraint(Sketcher.Constraint("Vertical", 2, 2, 5, 2))
sketch11.addConstraint(Sketcher.Constraint("Radius", 4, 1.0))
sketch11.addConstraint(Sketcher.Constraint("Radius", 8, 2.0))
sketch11.addConstraint(Sketcher.Constraint("Angle", 3, Q("-10.001 deg")))
sketch11.addConstraint(Sketcher.Constraint("DistanceX", 0, 2, 0, 1, 0.5))
sketch11.addConstraint(Sketcher.Constraint("DistanceX", -1, 1, 4, 3, 7.0))
sketch11.addConstraint(Sketcher.Constraint("DistanceY", -1, 1, 4, 3, 41.0))
sketch11.addConstraint(Sketcher.Constraint("DistanceX", -1, 1, 1, 2, 5.0))
sketch11.addConstraint(Sketcher.Constraint("DistanceY", -1, 1, 1, 2, 43.0))
sketch11.addConstraint(Sketcher.Constraint("DistanceY", 9, 1, 9, 2, 4.75))
sketch11.addConstraint(Sketcher.Constraint("Angle", 7, Q("29.2498 deg")))
pad9 = body.newObject("PartDesign::Pad", "Pad008")
pad9.Profile = sketch11
pad9.Length = 2
pad9.Midplane = True

sketch12 = body.newObject("Sketcher::SketchObject", "Sketch011")
sketch12.AttachmentSupport = (doc.getObject("YZ_Plane"), [""])
sketch12.MapMode = "FlatFace"
sketch12.AttachmentOffset = App.Placement(V(0, 0, 8.165), App.Rotation())
sketch12.addGeometry(Part.LineSegment(V(6.1851, -39.1403, 0), V(5, -39, 0)), False)
sketch12.addGeometry(Part.LineSegment(V(5, -39, 0), V(5, -40.245, 0)), False)
sketch12.addGeometry(Part.LineSegment(V(5, -40.245, 0), V(6.2718, -40.5858, 0)), False)
sketch12.addGeometry(Part.ArcOfCircle(Part.Circle(V(6, -41.6, 0), V(0, 0, 1), 1.049994), math.radians(-85.000714), math.radians(74.997579)), False)
sketch12.addGeometry(Part.LineSegment(V(6.0915, -42.646, 0), V(5, -42.7415, 0)), False)
sketch12.addGeometry(Part.LineSegment(V(5, -42.7415, 0), V(5, -43.2, 0)), False)
sketch12.addGeometry(Part.LineSegment(V(5, -43.2, 0), V(7.95, -44.2, 0)), False)
sketch12.addGeometry(Part.LineSegment(V(7.95, -44.2, 0), V(7.95, -41.1264, 0)), False)
sketch12.addGeometry(Part.ArcOfCircle(Part.Circle(V(5.95, -41.1264, 0), V(0, 0, 1), 2), math.radians(0), math.radians(83.249159)), False)
sketch12.addConstraint(Sketcher.Constraint("Coincident", 0, 2, 1, 1))
sketch12.addConstraint(Sketcher.Constraint("Coincident", 1, 2, 2, 1))
sketch12.addConstraint(Sketcher.Constraint("Tangent", 2, 2, 3, 2))
sketch12.addConstraint(Sketcher.Constraint("Tangent", 3, 1, 4, 1))
sketch12.addConstraint(Sketcher.Constraint("Coincident", 4, 2, 5, 1))
sketch12.addConstraint(Sketcher.Constraint("Coincident", 5, 2, 6, 1))
sketch12.addConstraint(Sketcher.Constraint("Coincident", 6, 2, 7, 1))
sketch12.addConstraint(Sketcher.Constraint("Tangent", 7, 2, 8, 1))
sketch12.addConstraint(Sketcher.Constraint("Tangent", 8, 2, 0, 1))
sketch12.addConstraint(Sketcher.Constraint("Vertical", 1))
sketch12.addConstraint(Sketcher.Constraint("Vertical", 5))
sketch12.addConstraint(Sketcher.Constraint("Vertical", 7))
sketch12.addConstraint(Sketcher.Constraint("Vertical", 1, 2, 4, 2))
sketch12.addConstraint(Sketcher.Constraint("Radius", 8, 2.0))
sketch12.addConstraint(Sketcher.Constraint("Angle", 2, Q("-15.001 deg")))
sketch12.addConstraint(Sketcher.Constraint("Angle", 4, Q("-174.9997 deg")))
sketch12.addConstraint(Sketcher.Constraint("Radius", 3, 1.05))
sketch12.addConstraint(Sketcher.Constraint("DistanceX", -1, 1, 3, 3, 6.0))
sketch12.addConstraint(Sketcher.Constraint("DistanceX", -1, 1, 0, 2, 5.0))
sketch12.addConstraint(Sketcher.Constraint("DistanceY", 0, 2, -1, 1, 39.0))
sketch12.addConstraint(Sketcher.Constraint("DistanceY", 6, 2, 5, 2, 1.0))
sketch12.addConstraint(Sketcher.Constraint("DistanceY", 3, 3, -1, 1, 41.6))
sketch12.addConstraint(Sketcher.Constraint("DistanceY", 5, 2, -1, 1, 43.2))
sketch12.addConstraint(Sketcher.Constraint("DistanceX", -1, 1, 8, 3, 5.95))
sketch12.addConstraint(Sketcher.Constraint("DistanceY", 7, 1, 7, 2, 3.0736))
pad10 = body.newObject("PartDesign::Pad", "Pad009")
pad10.Profile = sketch12
pad10.Length = 2.09
pad10.Midplane = True

sketch13 = body.newObject("Sketcher::SketchObject", "Sketch012")
sketch13.AttachmentSupport = (doc.getObject("YZ_Plane"), [""])
sketch13.MapMode = "FlatFace"
sketch13.AttachmentOffset = App.Placement(V(0, 0, -8.165), App.Rotation())
sketch13.addGeometry(Part.LineSegment(V(6.1851, -39.1403, 0), V(5, -39, 0)), False)
sketch13.addGeometry(Part.LineSegment(V(5, -39, 0), V(5, -40.245, 0)), False)
sketch13.addGeometry(Part.LineSegment(V(5, -40.245, 0), V(6.2718, -40.5858, 0)), False)
sketch13.addGeometry(Part.ArcOfCircle(Part.Circle(V(6, -41.6, 0), V(0, 0, 1), 1.049994), math.radians(-85.000714), math.radians(74.997579)), False)
sketch13.addGeometry(Part.LineSegment(V(6.0915, -42.646, 0), V(5, -42.7415, 0)), False)
sketch13.addGeometry(Part.LineSegment(V(5, -42.7415, 0), V(5, -43.2, 0)), False)
sketch13.addGeometry(Part.LineSegment(V(5, -43.2, 0), V(7.95, -44.2, 0)), False)
sketch13.addGeometry(Part.LineSegment(V(7.95, -44.2, 0), V(7.95, -41.1264, 0)), False)
sketch13.addGeometry(Part.ArcOfCircle(Part.Circle(V(5.95, -41.1264, 0), V(0, 0, 1), 2), math.radians(0), math.radians(83.249159)), False)
sketch13.addConstraint(Sketcher.Constraint("Coincident", 0, 2, 1, 1))
sketch13.addConstraint(Sketcher.Constraint("Coincident", 1, 2, 2, 1))
sketch13.addConstraint(Sketcher.Constraint("Tangent", 2, 2, 3, 2))
sketch13.addConstraint(Sketcher.Constraint("Tangent", 3, 1, 4, 1))
sketch13.addConstraint(Sketcher.Constraint("Coincident", 4, 2, 5, 1))
sketch13.addConstraint(Sketcher.Constraint("Coincident", 5, 2, 6, 1))
sketch13.addConstraint(Sketcher.Constraint("Coincident", 6, 2, 7, 1))
sketch13.addConstraint(Sketcher.Constraint("Tangent", 7, 2, 8, 1))
sketch13.addConstraint(Sketcher.Constraint("Tangent", 8, 2, 0, 1))
sketch13.addConstraint(Sketcher.Constraint("Vertical", 1))
sketch13.addConstraint(Sketcher.Constraint("Vertical", 5))
sketch13.addConstraint(Sketcher.Constraint("Vertical", 7))
sketch13.addConstraint(Sketcher.Constraint("Vertical", 1, 2, 4, 2))
sketch13.addConstraint(Sketcher.Constraint("Radius", 8, 2.0))
sketch13.addConstraint(Sketcher.Constraint("Angle", 2, Q("-15.001 deg")))
sketch13.addConstraint(Sketcher.Constraint("Angle", 4, Q("-174.9997 deg")))
sketch13.addConstraint(Sketcher.Constraint("Radius", 3, 1.05))
sketch13.addConstraint(Sketcher.Constraint("DistanceX", -1, 1, 3, 3, 6.0))
sketch13.addConstraint(Sketcher.Constraint("DistanceX", -1, 1, 0, 2, 5.0))
sketch13.addConstraint(Sketcher.Constraint("DistanceY", 0, 2, -1, 1, 39.0))
sketch13.addConstraint(Sketcher.Constraint("DistanceY", 6, 2, 5, 2, 1.0))
sketch13.addConstraint(Sketcher.Constraint("DistanceY", 3, 3, -1, 1, 41.6))
sketch13.addConstraint(Sketcher.Constraint("DistanceY", 5, 2, -1, 1, 43.2))
sketch13.addConstraint(Sketcher.Constraint("DistanceX", -1, 1, 8, 3, 5.95))
sketch13.addConstraint(Sketcher.Constraint("DistanceY", 7, 1, 7, 2, 3.0736))
pad11 = body.newObject("PartDesign::Pad", "Pad010")
pad11.Profile = sketch13
pad11.Length = 2.09
pad11.Midplane = True

doc.recompute()
